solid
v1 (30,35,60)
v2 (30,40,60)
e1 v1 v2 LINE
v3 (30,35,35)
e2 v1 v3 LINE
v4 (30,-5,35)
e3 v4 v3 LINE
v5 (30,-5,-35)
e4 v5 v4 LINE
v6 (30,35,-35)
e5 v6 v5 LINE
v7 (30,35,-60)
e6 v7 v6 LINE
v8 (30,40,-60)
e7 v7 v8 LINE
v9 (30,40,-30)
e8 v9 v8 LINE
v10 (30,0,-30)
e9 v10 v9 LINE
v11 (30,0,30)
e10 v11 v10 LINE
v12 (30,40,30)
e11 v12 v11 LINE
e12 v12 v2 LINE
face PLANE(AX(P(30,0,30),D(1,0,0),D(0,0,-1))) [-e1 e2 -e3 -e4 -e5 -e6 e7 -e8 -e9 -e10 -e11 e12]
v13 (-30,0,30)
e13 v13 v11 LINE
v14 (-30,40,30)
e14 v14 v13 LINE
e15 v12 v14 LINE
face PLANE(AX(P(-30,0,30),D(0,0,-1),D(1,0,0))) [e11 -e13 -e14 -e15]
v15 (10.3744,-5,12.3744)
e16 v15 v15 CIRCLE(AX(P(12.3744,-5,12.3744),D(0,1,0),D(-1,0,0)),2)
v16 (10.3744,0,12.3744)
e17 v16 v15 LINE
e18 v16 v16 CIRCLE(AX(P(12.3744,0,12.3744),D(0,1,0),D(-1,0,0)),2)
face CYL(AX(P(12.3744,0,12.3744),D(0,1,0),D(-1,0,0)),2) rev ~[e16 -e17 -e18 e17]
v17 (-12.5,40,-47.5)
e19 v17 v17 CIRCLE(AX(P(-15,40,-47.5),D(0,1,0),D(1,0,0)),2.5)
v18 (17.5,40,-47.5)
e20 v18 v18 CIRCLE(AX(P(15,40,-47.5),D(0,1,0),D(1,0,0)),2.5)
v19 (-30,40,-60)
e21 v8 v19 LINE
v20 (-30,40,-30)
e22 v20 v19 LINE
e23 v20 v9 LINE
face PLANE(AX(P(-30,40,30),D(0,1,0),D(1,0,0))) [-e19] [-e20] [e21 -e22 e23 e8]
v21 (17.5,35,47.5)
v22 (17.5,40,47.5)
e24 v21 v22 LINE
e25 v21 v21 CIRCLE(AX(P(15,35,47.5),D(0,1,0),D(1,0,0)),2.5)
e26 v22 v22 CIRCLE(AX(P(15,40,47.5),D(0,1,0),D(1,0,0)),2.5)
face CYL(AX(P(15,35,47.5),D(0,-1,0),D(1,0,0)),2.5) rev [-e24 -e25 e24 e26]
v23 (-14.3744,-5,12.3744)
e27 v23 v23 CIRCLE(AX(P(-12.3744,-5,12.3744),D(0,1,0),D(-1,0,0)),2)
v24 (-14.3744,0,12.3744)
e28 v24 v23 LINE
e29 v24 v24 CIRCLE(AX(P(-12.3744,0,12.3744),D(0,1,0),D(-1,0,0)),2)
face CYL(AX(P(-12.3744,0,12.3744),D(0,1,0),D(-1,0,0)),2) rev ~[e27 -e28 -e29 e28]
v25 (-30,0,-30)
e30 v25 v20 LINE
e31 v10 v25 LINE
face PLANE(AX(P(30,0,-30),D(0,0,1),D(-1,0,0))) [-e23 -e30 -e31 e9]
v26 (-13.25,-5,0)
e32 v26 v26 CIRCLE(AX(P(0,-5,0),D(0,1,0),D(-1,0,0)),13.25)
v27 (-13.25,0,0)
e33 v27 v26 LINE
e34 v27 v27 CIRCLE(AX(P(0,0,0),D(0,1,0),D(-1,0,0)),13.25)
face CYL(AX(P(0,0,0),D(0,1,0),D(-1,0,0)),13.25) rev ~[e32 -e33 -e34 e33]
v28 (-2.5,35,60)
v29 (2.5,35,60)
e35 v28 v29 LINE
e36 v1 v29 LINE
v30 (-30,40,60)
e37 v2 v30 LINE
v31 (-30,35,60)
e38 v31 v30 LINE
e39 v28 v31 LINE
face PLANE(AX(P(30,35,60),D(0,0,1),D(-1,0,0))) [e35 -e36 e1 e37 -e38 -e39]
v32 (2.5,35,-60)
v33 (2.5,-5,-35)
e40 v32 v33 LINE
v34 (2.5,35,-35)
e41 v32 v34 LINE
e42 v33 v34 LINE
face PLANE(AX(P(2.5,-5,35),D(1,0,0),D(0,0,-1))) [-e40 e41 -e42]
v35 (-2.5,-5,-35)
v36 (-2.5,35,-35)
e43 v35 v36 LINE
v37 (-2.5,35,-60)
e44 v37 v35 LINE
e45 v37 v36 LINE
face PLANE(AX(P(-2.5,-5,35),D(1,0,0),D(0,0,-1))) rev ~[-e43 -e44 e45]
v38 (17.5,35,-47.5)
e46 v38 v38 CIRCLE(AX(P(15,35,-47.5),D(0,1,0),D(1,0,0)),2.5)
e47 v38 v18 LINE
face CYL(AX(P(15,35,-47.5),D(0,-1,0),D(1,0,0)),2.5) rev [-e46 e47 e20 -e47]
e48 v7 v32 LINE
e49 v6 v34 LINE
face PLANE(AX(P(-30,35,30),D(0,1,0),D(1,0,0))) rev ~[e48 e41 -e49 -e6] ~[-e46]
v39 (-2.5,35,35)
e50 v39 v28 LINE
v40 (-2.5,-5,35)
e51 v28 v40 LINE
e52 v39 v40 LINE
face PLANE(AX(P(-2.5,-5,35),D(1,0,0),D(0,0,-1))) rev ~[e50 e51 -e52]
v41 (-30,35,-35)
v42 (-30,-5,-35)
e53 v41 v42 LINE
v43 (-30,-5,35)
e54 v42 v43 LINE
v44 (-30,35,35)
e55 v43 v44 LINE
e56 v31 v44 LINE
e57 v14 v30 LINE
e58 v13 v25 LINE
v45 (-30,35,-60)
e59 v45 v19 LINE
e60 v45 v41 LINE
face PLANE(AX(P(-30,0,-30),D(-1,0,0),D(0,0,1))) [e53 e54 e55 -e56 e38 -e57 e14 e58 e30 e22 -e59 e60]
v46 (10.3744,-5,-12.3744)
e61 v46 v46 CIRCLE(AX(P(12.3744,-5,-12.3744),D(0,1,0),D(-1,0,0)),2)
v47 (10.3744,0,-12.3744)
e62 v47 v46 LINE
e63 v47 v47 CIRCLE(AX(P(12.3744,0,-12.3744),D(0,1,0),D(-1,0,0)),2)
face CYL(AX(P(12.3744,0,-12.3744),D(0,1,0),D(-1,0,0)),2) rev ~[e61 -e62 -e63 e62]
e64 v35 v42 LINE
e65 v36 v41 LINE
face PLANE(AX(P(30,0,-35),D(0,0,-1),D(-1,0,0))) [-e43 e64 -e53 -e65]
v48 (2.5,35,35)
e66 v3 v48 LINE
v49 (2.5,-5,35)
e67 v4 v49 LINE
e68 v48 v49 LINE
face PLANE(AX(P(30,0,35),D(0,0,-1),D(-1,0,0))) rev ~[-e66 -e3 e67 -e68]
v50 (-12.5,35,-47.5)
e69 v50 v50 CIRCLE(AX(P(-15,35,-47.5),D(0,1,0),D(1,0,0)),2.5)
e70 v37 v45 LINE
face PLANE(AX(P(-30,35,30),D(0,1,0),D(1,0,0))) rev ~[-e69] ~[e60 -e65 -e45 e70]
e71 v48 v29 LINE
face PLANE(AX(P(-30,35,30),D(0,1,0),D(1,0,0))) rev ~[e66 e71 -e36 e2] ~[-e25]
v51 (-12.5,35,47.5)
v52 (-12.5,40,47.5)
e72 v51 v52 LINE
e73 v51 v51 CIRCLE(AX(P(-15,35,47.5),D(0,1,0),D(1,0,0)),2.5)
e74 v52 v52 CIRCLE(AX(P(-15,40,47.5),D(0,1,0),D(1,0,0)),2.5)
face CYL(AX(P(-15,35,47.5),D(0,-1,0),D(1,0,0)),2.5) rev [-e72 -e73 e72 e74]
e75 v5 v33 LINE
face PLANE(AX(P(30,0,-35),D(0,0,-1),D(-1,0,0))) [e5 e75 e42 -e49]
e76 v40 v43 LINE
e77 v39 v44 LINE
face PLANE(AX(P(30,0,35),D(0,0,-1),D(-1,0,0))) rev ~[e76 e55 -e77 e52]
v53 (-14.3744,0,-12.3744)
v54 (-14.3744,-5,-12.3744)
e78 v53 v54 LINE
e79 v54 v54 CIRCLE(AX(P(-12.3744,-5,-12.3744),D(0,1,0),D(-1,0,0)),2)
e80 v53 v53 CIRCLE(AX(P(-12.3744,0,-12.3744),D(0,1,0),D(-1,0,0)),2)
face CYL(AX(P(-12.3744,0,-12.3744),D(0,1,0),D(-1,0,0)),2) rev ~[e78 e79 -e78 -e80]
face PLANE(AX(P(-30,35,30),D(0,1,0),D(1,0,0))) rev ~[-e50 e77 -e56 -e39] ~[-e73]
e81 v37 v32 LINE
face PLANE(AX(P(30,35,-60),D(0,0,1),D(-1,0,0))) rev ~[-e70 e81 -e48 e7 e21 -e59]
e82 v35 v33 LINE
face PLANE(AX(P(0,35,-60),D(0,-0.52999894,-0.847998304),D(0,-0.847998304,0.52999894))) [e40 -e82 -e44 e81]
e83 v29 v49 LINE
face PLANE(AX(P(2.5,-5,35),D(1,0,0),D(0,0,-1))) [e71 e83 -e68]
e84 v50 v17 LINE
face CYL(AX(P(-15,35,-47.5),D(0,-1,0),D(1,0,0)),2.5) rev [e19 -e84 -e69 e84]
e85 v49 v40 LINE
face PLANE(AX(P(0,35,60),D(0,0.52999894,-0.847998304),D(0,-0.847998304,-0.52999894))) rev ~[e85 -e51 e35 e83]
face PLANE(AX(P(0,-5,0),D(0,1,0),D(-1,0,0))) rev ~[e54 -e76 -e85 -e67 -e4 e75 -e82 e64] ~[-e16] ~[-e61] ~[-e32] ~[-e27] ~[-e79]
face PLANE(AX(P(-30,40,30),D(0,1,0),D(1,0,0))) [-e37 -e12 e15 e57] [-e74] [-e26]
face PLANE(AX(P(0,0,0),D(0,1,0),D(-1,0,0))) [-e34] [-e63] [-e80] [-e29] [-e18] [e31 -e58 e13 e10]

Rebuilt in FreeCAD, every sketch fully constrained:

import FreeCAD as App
import Part
import Sketcher

V = App.Vector
Q = App.Units.Quantity

doc = App.newDocument("Part")
params = doc.addObject("Spreadsheet::Sheet", "Params")
for row, (alias, value) in enumerate([
    ("sketch1_diameter", "4 mm"),
    ("sketch1_diameter2", "26.5 mm"),
    ("sketch1_width", "60 mm"),
    ("sketch1_height", "70 mm"),
    ("pad1_length", "5 mm"),
    ("sketch2_width", "60 mm"),
    ("sketch2_height", "5 mm"),
    ("pad2_length", "35 mm"),
    ("sketch3_diameter", "5 mm"),
    ("sketch3_height", "30 mm"),
    ("pad3_length", "5 mm"),
    ("sketch4_width", "40 mm"),
    ("sketch4_height", "25 mm"),
    ("pad4_length", "5 mm"),
], start=1):
    params.set(f"A{row}", alias)
    params.set(f"B{row}", "=" + value)
    params.setAlias(f"B{row}", alias)

body = doc.addObject("PartDesign::Body", "Body")

sketch1 = doc.addObject("Sketcher::SketchObject", "Sketch")
body.addObject(sketch1)
sketch1.AttachmentSupport = (doc.XZ_Plane, [""])
sketch1.MapMode = "FlatFace"
sketch1.addGeometry(Part.LineSegment(V(-30, 35, 0), V(30, 35, 0)), False)
sketch1.addGeometry(Part.LineSegment(V(30, 35, 0), V(30, -35, 0)), False)
sketch1.addGeometry(Part.LineSegment(V(30, -35, 0), V(-30, -35, 0)), False)
sketch1.addGeometry(Part.LineSegment(V(-30, -35, 0), V(-30, 35, 0)), False)
sketch1.addGeometry(Part.Circle(V(12.4, -12.4, 0), V(0, 0, 1), 2), False)
sketch1.addGeometry(Part.Circle(V(-12.4, -12.4, 0), V(0, 0, 1), 2), False)
sketch1.addGeometry(Part.Circle(V(12.4, 12.4, 0), V(0, 0, 1), 2), False)
sketch1.addGeometry(Part.Circle(V(0, 0, 0), V(0, 0, 1), 13.2), False)
sketch1.addGeometry(Part.Circle(V(-12.4, 12.4, 0), V(0, 0, 1), 2), False)
sketch1.addConstraint(Sketcher.Constraint("Coincident", 0, 2, 1, 1))
sketch1.addConstraint(Sketcher.Constraint("Coincident", 1, 2, 2, 1))
sketch1.addConstraint(Sketcher.Constraint("Coincident", 2, 2, 3, 1))
sketch1.addConstraint(Sketcher.Constraint("Coincident", 3, 2, 0, 1))
sketch1.addConstraint(Sketcher.Constraint("Horizontal", 0))
sketch1.addConstraint(Sketcher.Constraint("Vertical", 1))
sketch1.addConstraint(Sketcher.Constraint("Horizontal", 2))
sketch1.addConstraint(Sketcher.Constraint("Vertical", 3))
sketch1.addConstraint(Sketcher.Constraint("Coincident", 7, 3, -1, 1))
sketch1.addConstraint(Sketcher.Constraint("Equal", 4, 5))
sketch1.addConstraint(Sketcher.Constraint("Equal", 5, 6))
sketch1.addConstraint(Sketcher.Constraint("Equal", 6, 8))
sketch1.addConstraint(Sketcher.Constraint("Symmetric", 5, 3, 6, 3, -1, 1))
sketch1.addConstraint(Sketcher.Constraint("Symmetric", 4, 3, 8, 3, -1, 1))
sketch1.addConstraint(Sketcher.Constraint("Symmetric", 0, 2, 2, 2, -1, 1))
sketch1.addConstraint(Sketcher.Constraint("Symmetric", 4, 3, 5, 3, -2))
sketch1.addConstraint(Sketcher.Constraint("Diameter", 4, Q("4 mm")))
sketch1.addConstraint(Sketcher.Constraint("Diameter", 7, Q("26.5 mm")))
sketch1.addConstraint(Sketcher.Constraint("DistanceX", 0, 1, 0, 2, Q("60 mm")))
sketch1.addConstraint(Sketcher.Constraint("DistanceY", 1, 2, 1, 1, Q("70 mm")))
sketch1.addConstraint(Sketcher.Constraint("DistanceX", -1, 1, 4, 3, Q("12.3744 mm")))
sketch1.addConstraint(Sketcher.Constraint("DistanceY", 4, 3, -1, 1, Q("12.3744 mm")))
sketch1.setExpression("Constraints[16]", "Params.sketch1_diameter")
sketch1.setExpression("Constraints[17]", "Params.sketch1_diameter2")
sketch1.setExpression("Constraints[18]", "Params.sketch1_width")
sketch1.setExpression("Constraints[19]", "Params.sketch1_height")
pad1 = doc.addObject("PartDesign::Pad", "Pad")
body.addObject(pad1)
pad1.Profile = sketch1
pad1.setExpression("Length", "Params.pad1_length")

sketch2 = doc.addObject("Sketcher::SketchObject", "Sketch001")
body.addObject(sketch2)
sketch2.AttachmentSupport = (doc.XZ_Plane, [""])
sketch2.MapMode = "FlatFace"
sketch2.addGeometry(Part.LineSegment(V(30, 30, 0), V(-30, 30, 0)), False)
sketch2.addGeometry(Part.LineSegment(V(-30, 30, 0), V(-30, 35, 0)), False)
sketch2.addGeometry(Part.LineSegment(V(-30, 35, 0), V(30, 35, 0)), False)
sketch2.addGeometry(Part.LineSegment(V(30, 35, 0), V(30, 30, 0)), False)
sketch2.addGeometry(Part.LineSegment(V(-30, -35, 0), V(-30, -30, 0)), False)
sketch2.addGeometry(Part.LineSegment(V(-30, -30, 0), V(30, -30, 0)), False)
sketch2.addGeometry(Part.LineSegment(V(30, -30, 0), V(30, -35, 0)), False)
sketch2.addGeometry(Part.LineSegment(V(30, -35, 0), V(-30, -35, 0)), False)
sketch2.addConstraint(Sketcher.Constraint("Coincident", 0, 2, 1, 1))
sketch2.addConstraint(Sketcher.Constraint("Coincident", 1, 2, 2, 1))
sketch2.addConstraint(Sketcher.Constraint("Coincident", 2, 2, 3, 1))
sketch2.addConstraint(Sketcher.Constraint("Coincident", 3, 2, 0, 1))
sketch2.addConstraint(Sketcher.Constraint("Coincident", 4, 2, 5, 1))
sketch2.addConstraint(Sketcher.Constraint("Coincident", 5, 2, 6, 1))
sketch2.addConstraint(Sketcher.Constraint("Coincident", 6, 2, 7, 1))
sketch2.addConstraint(Sketcher.Constraint("Coincident", 7, 2, 4, 1))
sketch2.addConstraint(Sketcher.Constraint("Horizontal", 0))
sketch2.addConstraint(Sketcher.Constraint("Vertical", 1))
sketch2.addConstraint(Sketcher.Constraint("Horizontal", 2))
sketch2.addConstraint(Sketcher.Constraint("Vertical", 3))
sketch2.addConstraint(Sketcher.Constraint("Vertical", 4))
sketch2.addConstraint(Sketcher.Constraint("Horizontal", 5))
sketch2.addConstraint(Sketcher.Constraint("Vertical", 6))
sketch2.addConstraint(Sketcher.Constraint("Horizontal", 7))
sketch2.addConstraint(Sketcher.Constraint("Symmetric", 3, 2, 4, 2, -1, 1))
sketch2.addConstraint(Sketcher.Constraint("Symmetric", 1, 2, 6, 2, -1, 1))
sketch2.addConstraint(Sketcher.Constraint("Vertical", 1, 2, 4, 2))
sketch2.addConstraint(Sketcher.Constraint("DistanceX", 0, 2, 0, 1, Q("60 mm")))
sketch2.addConstraint(Sketcher.Constraint("DistanceY", 1, 1, 1, 2, Q("5 mm")))
sketch2.addConstraint(Sketcher.Constraint("DistanceY", 4, 2, 0, 2, Q("60 mm")))
sketch2.setExpression("Constraints[19]", "Params.sketch2_width")
sketch2.setExpression("Constraints[20]", "Params.sketch2_height")
pad2 = doc.addObject("PartDesign::Pad", "Pad001")
body.addObject(pad2)
pad2.Profile = sketch2
pad2.setExpression("Length", "Params.pad2_length")
pad2.Reversed = True

sketch3 = doc.addObject("Sketcher::SketchObject", "Sketch002")
body.addObject(sketch3)
sketch3.AttachmentSupport = (doc.XZ_Plane, [""])
sketch3.MapMode = "FlatFace"
sketch3.AttachmentOffset = App.Placement(V(0, 0, -35), App.Rotation())
sketch3.addGeometry(Part.LineSegment(V(30, 30, 0), V(-30, 30, 0)), False)
sketch3.addGeometry(Part.LineSegment(V(-30, 30, 0), V(-30, 60, 0)), False)
sketch3.addGeometry(Part.LineSegment(V(-30, 60, 0), V(30, 60, 0)), False)
sketch3.addGeometry(Part.LineSegment(V(30, 60, 0), V(30, 30, 0)), False)
sketch3.addGeometry(Part.Circle(V(15, 47.5, 0), V(0, 0, 1), 2.5), False)
sketch3.addGeometry(Part.Circle(V(-15, 47.5, 0), V(0, 0, 1), 2.5), False)
sketch3.addGeometry(Part.LineSegment(V(-30, -30, 0), V(30, -30, 0)), False)
sketch3.addGeometry(Part.LineSegment(V(30, -30, 0), V(30, -60, 0)), False)
sketch3.addGeometry(Part.LineSegment(V(30, -60, 0), V(-30, -60, 0)), False)
sketch3.addGeometry(Part.LineSegment(V(-30, -60, 0), V(-30, -30, 0)), False)
sketch3.addGeometry(Part.Circle(V(15, -47.5, 0), V(0, 0, 1), 2.5), False)
sketch3.addGeometry(Part.Circle(V(-15, -47.5, 0), V(0, 0, 1), 2.5), False)
sketch3.addConstraint(Sketcher.Constraint("Coincident", 0, 2, 1, 1))
sketch3.addConstraint(Sketcher.Constraint("Coincident", 1, 2, 2, 1))
sketch3.addConstraint(Sketcher.Constraint("Coincident", 2, 2, 3, 1))
sketch3.addConstraint(Sketcher.Constraint("Coincident", 3, 2, 0, 1))
sketch3.addConstraint(Sketcher.Constraint("Coincident", 6, 2, 7, 1))
sketch3.addConstraint(Sketcher.Constraint("Coincident", 7, 2, 8, 1))
sketch3.addConstraint(Sketcher.Constraint("Coincident", 8, 2, 9, 1))
sketch3.addConstraint(Sketcher.Constraint("Coincident", 9, 2, 6, 1))
sketch3.addConstraint(Sketcher.Constraint("Horizontal", 0))
sketch3.addConstraint(Sketcher.Constraint("Vertical", 1))
sketch3.addConstraint(Sketcher.Constraint("Horizontal", 2))
sketch3.addConstraint(Sketcher.Constraint("Vertical", 3))
sketch3.addConstraint(Sketcher.Constraint("Horizontal", 6))
sketch3.addConstraint(Sketcher.Constraint("Vertical", 7))
sketch3.addConstraint(Sketcher.Constraint("Horizontal", 8))
sketch3.addConstraint(Sketcher.Constraint("Vertical", 9))
sketch3.addConstraint(Sketcher.Constraint("Equal", 4, 5))
sketch3.addConstraint(Sketcher.Constraint("Equal", 5, 10))
sketch3.addConstraint(Sketcher.Constraint("Equal", 10, 11))
sketch3.addConstraint(Sketcher.Constraint("Symmetric", 5, 3, 10, 3, -1, 1))
sketch3.addConstraint(Sketcher.Constraint("Symmetric", 4, 3, 11, 3, -1, 1))
sketch3.addConstraint(Sketcher.Constraint("Symmetric", 0, 2, 6, 2, -1, 1))
sketch3.addConstraint(Sketcher.Constraint("Symmetric", 2, 2, 8, 2, -1, 1))
sketch3.addConstraint(Sketcher.Constraint("Symmetric", 4, 3, 5, 3, -2))
sketch3.addConstraint(Sketcher.Constraint("Vertical", 3, 2, 6, 2))
sketch3.addConstraint(Sketcher.Constraint("Diameter", 4, Q("5 mm")))
sketch3.addConstraint(Sketcher.Constraint("DistanceX", -1, 1, 4, 3, Q("15 mm")))
sketch3.addConstraint(Sketcher.Constraint("DistanceX", 0, 2, 5, 3, Q("15 mm")))
sketch3.addConstraint(Sketcher.Constraint("DistanceY", 1, 1, 1, 2, Q("30 mm")))
sketch3.addConstraint(Sketcher.Constraint("DistanceY", -1, 1, 0, 2, Q("30 mm")))
sketch3.addConstraint(Sketcher.Constraint("DistanceY", 10, 3, 4, 3, Q("95 mm")))
sketch3.setExpression("Constraints[25]", "Params.sketch3_diameter")
sketch3.setExpression("Constraints[28]", "Params.sketch3_height")
pad3 = doc.addObject("PartDesign::Pad", "Pad002")
body.addObject(pad3)
pad3.Profile = sketch3
pad3.setExpression("Length", "Params.pad3_length")
pad3.Reversed = True

sketch4 = doc.addObject("Sketcher::SketchObject", "Sketch003")
body.addObject(sketch4)
sketch4.AttachmentSupport = (doc.YZ_Plane, [""])
sketch4.MapMode = "FlatFace"
sketch4.addGeometry(Part.LineSegment(V(35, -35, 0), V(-5, -35, 0)), False)
sketch4.addGeometry(Part.LineSegment(V(-5, -35, 0), V(35, -60, 0)), False)
sketch4.addGeometry(Part.LineSegment(V(35, -60, 0), V(35, -35, 0)), False)
sketch4.addGeometry(Part.LineSegment(V(-5, 35, 0), V(35, 35, 0)), False)
sketch4.addGeometry(Part.LineSegment(V(35, 35, 0), V(35, 60, 0)), False)
sketch4.addGeometry(Part.LineSegment(V(35, 60, 0), V(-5, 35, 0)), False)
sketch4.addConstraint(Sketcher.Constraint("Coincident", 0, 2, 1, 1))
sketch4.addConstraint(Sketcher.Constraint("Coincident", 1, 2, 2, 1))
sketch4.addConstraint(Sketcher.Constraint("Coincident", 2, 2, 0, 1))
sketch4.addConstraint(Sketcher.Constraint("Coincident", 3, 2, 4, 1))
sketch4.addConstraint(Sketcher.Constraint("Coincident", 4, 2, 5, 1))
sketch4.addConstraint(Sketcher.Constraint("Coincident", 5, 2, 3, 1))
sketch4.addConstraint(Sketcher.Constraint("Horizontal", 0))
sketch4.addConstraint(Sketcher.Constraint("Vertical", 2))
sketch4.addConstraint(Sketcher.Constraint("Horizontal", 3))
sketch4.addConstraint(Sketcher.Constraint("Vertical", 4))
sketch4.addConstraint(Sketcher.Constraint("Symmetric", 2, 2, 3, 2, -1))
sketch4.addConstraint(Sketcher.Constraint("Vertical", 0, 2, 5, 2))
sketch4.addConstraint(Sketcher.Constraint("Equal", 2, 4))
sketch4.addConstraint(Sketcher.Constraint("DistanceX", 0, 2, 0, 1, Q("40 mm")))
sketch4.addConstraint(Sketcher.Constraint("DistanceY", 2, 1, 2, 2, Q("25 mm")))
sketch4.addConstraint(Sketcher.Constraint("DistanceX", 0, 2, -1, 1, Q("5 mm")))
sketch4.addConstraint(Sketcher.Constraint("DistanceY", 0, 2, -1, 1, Q("35 mm")))
sketch4.setExpression("Constraints[13]", "Params.sketch4_width")
sketch4.setExpression("Constraints[14]", "Params.sketch4_height")
pad4 = doc.addObject("PartDesign::Pad", "Pad003")
body.addObject(pad4)
pad4.Profile = sketch4
pad4.setExpression("Length", "Params.pad4_length")
pad4.Midplane = True

doc.recompute()
